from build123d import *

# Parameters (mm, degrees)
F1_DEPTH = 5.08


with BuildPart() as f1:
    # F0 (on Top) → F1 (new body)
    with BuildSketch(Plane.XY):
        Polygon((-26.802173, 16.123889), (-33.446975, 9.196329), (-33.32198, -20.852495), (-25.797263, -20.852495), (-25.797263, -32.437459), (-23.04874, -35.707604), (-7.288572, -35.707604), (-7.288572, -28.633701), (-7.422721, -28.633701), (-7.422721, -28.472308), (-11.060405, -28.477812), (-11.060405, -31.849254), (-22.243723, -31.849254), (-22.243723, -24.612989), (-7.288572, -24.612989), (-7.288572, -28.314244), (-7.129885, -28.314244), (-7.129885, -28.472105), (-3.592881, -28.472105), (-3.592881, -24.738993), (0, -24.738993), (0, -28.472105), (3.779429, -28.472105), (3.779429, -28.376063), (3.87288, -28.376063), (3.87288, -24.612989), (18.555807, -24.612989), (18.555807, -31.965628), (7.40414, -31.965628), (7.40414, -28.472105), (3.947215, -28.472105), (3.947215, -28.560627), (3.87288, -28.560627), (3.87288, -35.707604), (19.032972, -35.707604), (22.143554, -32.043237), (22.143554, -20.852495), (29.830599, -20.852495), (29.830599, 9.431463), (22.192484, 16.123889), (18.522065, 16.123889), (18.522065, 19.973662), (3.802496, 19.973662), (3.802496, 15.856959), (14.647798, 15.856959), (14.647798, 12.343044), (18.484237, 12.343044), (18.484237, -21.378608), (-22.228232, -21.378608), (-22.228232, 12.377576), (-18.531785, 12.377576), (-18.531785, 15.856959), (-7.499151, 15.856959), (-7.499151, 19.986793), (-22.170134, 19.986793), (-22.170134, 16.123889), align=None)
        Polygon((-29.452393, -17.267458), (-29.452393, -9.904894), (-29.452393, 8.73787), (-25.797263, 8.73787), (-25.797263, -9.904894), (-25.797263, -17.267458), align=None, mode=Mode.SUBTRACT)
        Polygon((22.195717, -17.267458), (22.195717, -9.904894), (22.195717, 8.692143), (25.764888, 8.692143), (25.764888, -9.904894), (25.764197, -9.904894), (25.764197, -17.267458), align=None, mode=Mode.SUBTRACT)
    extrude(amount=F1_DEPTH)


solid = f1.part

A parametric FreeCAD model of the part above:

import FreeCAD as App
import Part
import Sketcher
Q = App.Units.Quantity


def add_polygon(sketch, points):
    """Adds a closed chain of lines whose ends are joined by coincident constraints."""
    first, n = sketch.GeometryCount, len(points)
    for a, b in zip(points, points[1:] + points[:1]):
        sketch.addGeometry(Part.LineSegment(App.Vector(*a, 0), App.Vector(*b, 0)), False)
    for i in range(n):
        sketch.addConstraint(Sketcher.Constraint("Coincident", first + i, 2, first + (i + 1) % n, 1))

doc = App.newDocument("Part")
body = doc.addObject("PartDesign::Body", "Body")

# Sketch on XY plane
sketch1 = doc.addObject("Sketcher::SketchObject", "Sketch")
body.addObject(sketch1)
sketch1.AttachmentSupport = (doc.XY_Plane, [""])
sketch1.MapMode = "FlatFace"
add_polygon(sketch1, [(-26.802173, 16.123889), (-33.446975, 9.196329), (-33.32198, -20.852495), (-25.797263, -20.852495), (-25.797263, -32.437459), (-23.04874, -35.707604), (-7.288572, -35.707604), (-7.288572, -28.633701), (-7.422721, -28.633701), (-7.422721, -28.472308), (-11.060405, -28.477812), (-11.060405, -31.849254), (-22.243723, -31.849254), (-22.243723, -24.612989), (-7.288572, -24.612989), (-7.288572, -28.314244), (-7.129885, -28.314244), (-7.129885, -28.472105), (-3.592881, -28.472105), (-3.592881, -24.738993), (0, -24.738993), (0, -28.472105), (3.779429, -28.472105), (3.779429, -28.376063), (3.87288, -28.376063), (3.87288, -24.612989), (18.555807, -24.612989), (18.555807, -31.965628), (7.40414, -31.965628), (7.40414, -28.472105), (3.947215, -28.472105), (3.947215, -28.560627), (3.87288, -28.560627), (3.87288, -35.707604), (19.032972, -35.707604), (22.143554, -32.043237), (22.143554, -20.852495), (29.830599, -20.852495), (29.830599, 9.431463), (22.192484, 16.123889), (18.522065, 16.123889), (18.522065, 19.973662), (3.802496, 19.973662), (3.802496, 15.856959), (14.647798, 15.856959), (14.647798, 12.343044), (18.484237, 12.343044), (18.484237, -21.378608), (-22.228232, -21.378608), (-22.228232, 12.377576), (-18.531785, 12.377576), (-18.531785, 15.856959), (-7.499151, 15.856959), (-7.499151, 19.986793), (-22.170134, 19.986793), (-22.170134, 16.123889)])  # lines 0-55
add_polygon(sketch1, [(25.764197, -17.267458), (22.195717, -17.267458), (22.195717, 8.692143), (25.764888, 8.692143), (25.764888, -9.904894), (25.764197, -9.904894)])  # lines 56-61
add_polygon(sketch1, [(-25.797263, -17.267458), (-29.452393, -17.267458), (-29.452393, 8.73787), (-25.797263, 8.73787)])  # lines 62-65
sketch1.addConstraint(Sketcher.Constraint("Horizontal", 2))
sketch1.addConstraint(Sketcher.Constraint("Vertical", 3))
sketch1.addConstraint(Sketcher.Constraint("Horizontal", 5))
sketch1.addConstraint(Sketcher.Constraint("Vertical", 6))
sketch1.addConstraint(Sketcher.Constraint("Horizontal", 7))
sketch1.addConstraint(Sketcher.Constraint("Vertical", 8))
sketch1.addConstraint(Sketcher.Constraint("Vertical", 10))
sketch1.addConstraint(Sketcher.Constraint("Horizontal", 11))
sketch1.addConstraint(Sketcher.Constraint("Vertical", 12))
sketch1.addConstraint(Sketcher.Constraint("Horizontal", 13))
sketch1.addConstraint(Sketcher.Constraint("Vertical", 14))
sketch1.addConstraint(Sketcher.Constraint("Horizontal", 15))
sketch1.addConstraint(Sketcher.Constraint("Vertical", 16))
sketch1.addConstraint(Sketcher.Constraint("Horizontal", 17))
sketch1.addConstraint(Sketcher.Constraint("Vertical", 18))
sketch1.addConstraint(Sketcher.Constraint("Horizontal", 19))
sketch1.addConstraint(Sketcher.Constraint("Vertical", 20))
sketch1.addConstraint(Sketcher.Constraint("Horizontal", 21))
sketch1.addConstraint(Sketcher.Constraint("Vertical", 22))
sketch1.addConstraint(Sketcher.Constraint("Horizontal", 23))
sketch1.addConstraint(Sketcher.Constraint("Vertical", 24))
sketch1.addConstraint(Sketcher.Constraint("Horizontal", 25))
sketch1.addConstraint(Sketcher.Constraint("Vertical", 26))
sketch1.addConstraint(Sketcher.Constraint("Horizontal", 27))
sketch1.addConstraint(Sketcher.Constraint("Vertical", 28))
sketch1.addConstraint(Sketcher.Constraint("Horizontal", 29))
sketch1.addConstraint(Sketcher.Constraint("Vertical", 30))
sketch1.addConstraint(Sketcher.Constraint("Horizontal", 31))
sketch1.addConstraint(Sketcher.Constraint("Vertical", 32))
sketch1.addConstraint(Sketcher.Constraint("Horizontal", 33))
sketch1.addConstraint(Sketcher.Constraint("Vertical", 35))
sketch1.addConstraint(Sketcher.Constraint("Horizontal", 36))
sketch1.addConstraint(Sketcher.Constraint("Vertical", 37))
sketch1.addConstraint(Sketcher.Constraint("Horizontal", 39))
sketch1.addConstraint(Sketcher.Constraint("Vertical", 40))
sketch1.addConstraint(Sketcher.Constraint("Horizontal", 41))
sketch1.addConstraint(Sketcher.Constraint("Vertical", 42))
sketch1.addConstraint(Sketcher.Constraint("Horizontal", 43))
sketch1.addConstraint(Sketcher.Constraint("Vertical", 44))
sketch1.addConstraint(Sketcher.Constraint("Horizontal", 45))
sketch1.addConstraint(Sketcher.Constraint("Vertical", 46))
sketch1.addConstraint(Sketcher.Constraint("Horizontal", 47))
sketch1.addConstraint(Sketcher.Constraint("Vertical", 48))
sketch1.addConstraint(Sketcher.Constraint("Horizontal", 49))
sketch1.addConstraint(Sketcher.Constraint("Vertical", 50))
sketch1.addConstraint(Sketcher.Constraint("Horizontal", 51))
sketch1.addConstraint(Sketcher.Constraint("Vertical", 52))
sketch1.addConstraint(Sketcher.Constraint("Horizontal", 53))
sketch1.addConstraint(Sketcher.Constraint("Vertical", 54))
sketch1.addConstraint(Sketcher.Constraint("Horizontal", 55))
sketch1.addConstraint(Sketcher.Constraint("Horizontal", 56))
sketch1.addConstraint(Sketcher.Constraint("Vertical", 57))
sketch1.addConstraint(Sketcher.Constraint("Horizontal", 58))
sketch1.addConstraint(Sketcher.Constraint("Vertical", 59))
sketch1.addConstraint(Sketcher.Constraint("Horizontal", 60))
sketch1.addConstraint(Sketcher.Constraint("Vertical", 61))
sketch1.addConstraint(Sketcher.Constraint("Horizontal", 62))
sketch1.addConstraint(Sketcher.Constraint("Vertical", 63))
sketch1.addConstraint(Sketcher.Constraint("Horizontal", 64))
sketch1.addConstraint(Sketcher.Constraint("Vertical", 65))
sketch1.addConstraint(Sketcher.Constraint("PointOnObject", 19, 2, -2))
sketch1.addConstraint(Sketcher.Constraint("Horizontal", 17, 2, 20, 2))
sketch1.addConstraint(Sketcher.Constraint("Horizontal", 13, 2, 24, 2))
sketch1.addConstraint(Sketcher.Constraint("Horizontal", 21, 2, 28, 2))
sketch1.addConstraint(Sketcher.Constraint("Horizontal", 5, 2, 32, 2))
sketch1.addConstraint(Sketcher.Constraint("Horizontal", 2, 2, 35, 2))
sketch1.addConstraint(Sketcher.Constraint("Horizontal", 43, 2, 50, 2))
sketch1.addConstraint(Sketcher.Constraint("Horizontal", 39, 2, 54, 2))
sketch1.addConstraint(Sketcher.Constraint("Horizontal", 61, 2, 62, 2))
sketch1.addConstraint(Sketcher.Constraint("Vertical", 6, 2, 13, 2))
sketch1.addConstraint(Sketcher.Constraint("Vertical", 24, 2, 31, 2))
sketch1.addConstraint(Sketcher.Constraint("Vertical", 3, 2, 64, 2))
sketch1.addConstraint(Sketcher.Constraint("DistanceY", 6, 1, 6, 2, Q("0.2785001 in")))
sketch1.addConstraint(Sketcher.Constraint("DistanceY", 57, 1, 57, 2, 25.959601))
sketch1.addConstraint(Sketcher.Constraint("DistanceX", 7, 2, 7, 1, 0.134149))
sketch1.addConstraint(Sketcher.Constraint("DistanceX", 13, 1, 13, 2, 14.955151))
sketch1.addConstraint(Sketcher.Constraint("DistanceX", 19, 1, 19, 2, 3.592881))
sketch1.addConstraint(Sketcher.Constraint("DistanceX", 21, 1, 21, 2, 3.779429))
sketch1.addConstraint(Sketcher.Constraint("DistanceX", 23, 1, 23, 2, 0.093451))
sketch1.addConstraint(Sketcher.Constraint("DistanceX", 39, 2, 39, 1, 3.670419))
sketch1.addConstraint(Sketcher.Constraint("DistanceX", 41, 2, 41, 1, 14.719569))
sketch1.addConstraint(Sketcher.Constraint("DistanceX", 45, 1, 45, 2, 3.836439))
sketch1.addConstraint(Sketcher.Constraint("DistanceX", 47, 2, 47, 1, 40.712469))
sketch1.addConstraint(Sketcher.Constraint("DistanceX", 55, 2, 55, 1, 4.632039))
sketch1.addConstraint(Sketcher.Constraint("DistanceX", 56, 2, 56, 1, 3.56848))
sketch1.addConstraint(Sketcher.Constraint("DistanceX", 58, 1, 58, 2, 3.569171))
sketch1.addConstraint(Sketcher.Constraint("DistanceX", 62, 2, 62, 1, 3.65513))
sketch1.addConstraint(Sketcher.Constraint("DistanceY", 10, 2, 10, 1, 3.371442))
sketch1.addConstraint(Sketcher.Constraint("DistanceY", 16, 2, 16, 1, 0.157861))
sketch1.addConstraint(Sketcher.Constraint("DistanceY", 18, 1, 18, 2, 3.733112))
sketch1.addConstraint(Sketcher.Constraint("DistanceY", 26, 2, 26, 1, 7.352639))
sketch1.addConstraint(Sketcher.Constraint("DistanceY", 35, 1, 35, 2, 11.190742))
sketch1.addConstraint(Sketcher.Constraint("DistanceY", 37, 1, 37, 2, 30.283958))
sketch1.addConstraint(Sketcher.Constraint("DistanceY", 6, 2, -1, 1, 28.633701))
sketch1.addConstraint(Sketcher.Constraint("DistanceX", -1, 1, 36, 2, 29.830599))
sketch1.addConstraint(Sketcher.Constraint("Distance", 0, 9.599192))
sketch1.addConstraint(Sketcher.Constraint("Distance", 9, 3.637688))
sketch1.addConstraint(Sketcher.Constraint("Distance", 34, 4.80659))
sketch1.addConstraint(Sketcher.Constraint("DistanceX", 2, 1, 2, 2, 7.524717))
sketch1.addConstraint(Sketcher.Constraint("DistanceX", 5, 1, 5, 2, 15.760168))
sketch1.addConstraint(Sketcher.Constraint("DistanceX", 15, 1, 15, 2, 0.158687))
sketch1.addConstraint(Sketcher.Constraint("DistanceX", 17, 1, 17, 2, 3.537004))
sketch1.addConstraint(Sketcher.Constraint("DistanceX", 25, 1, 25, 2, 14.682927))
sketch1.addConstraint(Sketcher.Constraint("DistanceX", 27, 2, 27, 1, 11.151667))
sketch1.addConstraint(Sketcher.Constraint("DistanceX", 29, 2, 29, 1, 3.456925))
sketch1.addConstraint(Sketcher.Constraint("DistanceX", 33, 1, 33, 2, 15.160092))
sketch1.addConstraint(Sketcher.Constraint("DistanceX", 36, 1, 36, 2, 7.687045))
sketch1.addConstraint(Sketcher.Constraint("DistanceX", 43, 1, 43, 2, 10.845302))
sketch1.addConstraint(Sketcher.Constraint("DistanceX", 49, 1, 49, 2, 3.696447))
sketch1.addConstraint(Sketcher.Constraint("DistanceX", 51, 1, 51, 2, 11.032634))
sketch1.addConstraint(Sketcher.Constraint("DistanceX", 53, 2, 53, 1, 14.670983))
sketch1.addConstraint(Sketcher.Constraint("DistanceY", 3, 2, 3, 1, 11.584964))
sketch1.addConstraint(Sketcher.Constraint("DistanceY", 8, 1, 8, 2, 0.161393))
sketch1.addConstraint(Sketcher.Constraint("DistanceY", 12, 1, 12, 2, 7.236265))
sketch1.addConstraint(Sketcher.Constraint("DistanceY", 14, 2, 14, 1, 3.701255))
sketch1.addConstraint(Sketcher.Constraint("DistanceY", 22, 1, 22, 2, 0.096042))
sketch1.addConstraint(Sketcher.Constraint("DistanceY", 30, 2, 30, 1, 0.088522))
sketch1.addConstraint(Sketcher.Constraint("DistanceY", 32, 2, 32, 1, 7.146977))
sketch1.addConstraint(Sketcher.Constraint("DistanceY", 40, 1, 40, 2, 3.849773))
sketch1.addConstraint(Sketcher.Constraint("DistanceY", 42, 2, 42, 1, 4.116703))
sketch1.addConstraint(Sketcher.Constraint("DistanceY", 44, 2, 44, 1, 3.513915))
sketch1.addConstraint(Sketcher.Constraint("DistanceY", 46, 2, 46, 1, 33.721652))
sketch1.addConstraint(Sketcher.Constraint("DistanceY", 48, 1, 48, 2, 33.756184))
sketch1.addConstraint(Sketcher.Constraint("DistanceY", 52, 1, 52, 2, 4.129834))
sketch1.addConstraint(Sketcher.Constraint("DistanceY", 59, 2, 59, 1, 18.597037))
sketch1.addConstraint(Sketcher.Constraint("DistanceY", 63, 1, 63, 2, 26.005328))
sketch1.addConstraint(Sketcher.Constraint("DistanceY", -1, 1, 0, 2, 9.196329))
sketch1.addConstraint(Sketcher.Constraint("DistanceX", 1, 2, -1, 1, 33.32198))
sketch1.addConstraint(Sketcher.Constraint("DistanceY", -1, 1, 38, 2, 16.123889))
sketch1.addConstraint(Sketcher.Constraint("DistanceX", 47, 2, -1, 1, 22.228232))
sketch1.addConstraint(Sketcher.Constraint("DistanceY", 56, 2, -1, 1, 17.267458))
sketch1.addConstraint(Sketcher.Constraint("DistanceX", -1, 1, 56, 2, 22.195717))
pad1 = doc.addObject("PartDesign::Pad", "Pad")
body.addObject(pad1)
pad1.Profile = sketch1
pad1.Length = Q("0.2 in")

doc.recompute()
